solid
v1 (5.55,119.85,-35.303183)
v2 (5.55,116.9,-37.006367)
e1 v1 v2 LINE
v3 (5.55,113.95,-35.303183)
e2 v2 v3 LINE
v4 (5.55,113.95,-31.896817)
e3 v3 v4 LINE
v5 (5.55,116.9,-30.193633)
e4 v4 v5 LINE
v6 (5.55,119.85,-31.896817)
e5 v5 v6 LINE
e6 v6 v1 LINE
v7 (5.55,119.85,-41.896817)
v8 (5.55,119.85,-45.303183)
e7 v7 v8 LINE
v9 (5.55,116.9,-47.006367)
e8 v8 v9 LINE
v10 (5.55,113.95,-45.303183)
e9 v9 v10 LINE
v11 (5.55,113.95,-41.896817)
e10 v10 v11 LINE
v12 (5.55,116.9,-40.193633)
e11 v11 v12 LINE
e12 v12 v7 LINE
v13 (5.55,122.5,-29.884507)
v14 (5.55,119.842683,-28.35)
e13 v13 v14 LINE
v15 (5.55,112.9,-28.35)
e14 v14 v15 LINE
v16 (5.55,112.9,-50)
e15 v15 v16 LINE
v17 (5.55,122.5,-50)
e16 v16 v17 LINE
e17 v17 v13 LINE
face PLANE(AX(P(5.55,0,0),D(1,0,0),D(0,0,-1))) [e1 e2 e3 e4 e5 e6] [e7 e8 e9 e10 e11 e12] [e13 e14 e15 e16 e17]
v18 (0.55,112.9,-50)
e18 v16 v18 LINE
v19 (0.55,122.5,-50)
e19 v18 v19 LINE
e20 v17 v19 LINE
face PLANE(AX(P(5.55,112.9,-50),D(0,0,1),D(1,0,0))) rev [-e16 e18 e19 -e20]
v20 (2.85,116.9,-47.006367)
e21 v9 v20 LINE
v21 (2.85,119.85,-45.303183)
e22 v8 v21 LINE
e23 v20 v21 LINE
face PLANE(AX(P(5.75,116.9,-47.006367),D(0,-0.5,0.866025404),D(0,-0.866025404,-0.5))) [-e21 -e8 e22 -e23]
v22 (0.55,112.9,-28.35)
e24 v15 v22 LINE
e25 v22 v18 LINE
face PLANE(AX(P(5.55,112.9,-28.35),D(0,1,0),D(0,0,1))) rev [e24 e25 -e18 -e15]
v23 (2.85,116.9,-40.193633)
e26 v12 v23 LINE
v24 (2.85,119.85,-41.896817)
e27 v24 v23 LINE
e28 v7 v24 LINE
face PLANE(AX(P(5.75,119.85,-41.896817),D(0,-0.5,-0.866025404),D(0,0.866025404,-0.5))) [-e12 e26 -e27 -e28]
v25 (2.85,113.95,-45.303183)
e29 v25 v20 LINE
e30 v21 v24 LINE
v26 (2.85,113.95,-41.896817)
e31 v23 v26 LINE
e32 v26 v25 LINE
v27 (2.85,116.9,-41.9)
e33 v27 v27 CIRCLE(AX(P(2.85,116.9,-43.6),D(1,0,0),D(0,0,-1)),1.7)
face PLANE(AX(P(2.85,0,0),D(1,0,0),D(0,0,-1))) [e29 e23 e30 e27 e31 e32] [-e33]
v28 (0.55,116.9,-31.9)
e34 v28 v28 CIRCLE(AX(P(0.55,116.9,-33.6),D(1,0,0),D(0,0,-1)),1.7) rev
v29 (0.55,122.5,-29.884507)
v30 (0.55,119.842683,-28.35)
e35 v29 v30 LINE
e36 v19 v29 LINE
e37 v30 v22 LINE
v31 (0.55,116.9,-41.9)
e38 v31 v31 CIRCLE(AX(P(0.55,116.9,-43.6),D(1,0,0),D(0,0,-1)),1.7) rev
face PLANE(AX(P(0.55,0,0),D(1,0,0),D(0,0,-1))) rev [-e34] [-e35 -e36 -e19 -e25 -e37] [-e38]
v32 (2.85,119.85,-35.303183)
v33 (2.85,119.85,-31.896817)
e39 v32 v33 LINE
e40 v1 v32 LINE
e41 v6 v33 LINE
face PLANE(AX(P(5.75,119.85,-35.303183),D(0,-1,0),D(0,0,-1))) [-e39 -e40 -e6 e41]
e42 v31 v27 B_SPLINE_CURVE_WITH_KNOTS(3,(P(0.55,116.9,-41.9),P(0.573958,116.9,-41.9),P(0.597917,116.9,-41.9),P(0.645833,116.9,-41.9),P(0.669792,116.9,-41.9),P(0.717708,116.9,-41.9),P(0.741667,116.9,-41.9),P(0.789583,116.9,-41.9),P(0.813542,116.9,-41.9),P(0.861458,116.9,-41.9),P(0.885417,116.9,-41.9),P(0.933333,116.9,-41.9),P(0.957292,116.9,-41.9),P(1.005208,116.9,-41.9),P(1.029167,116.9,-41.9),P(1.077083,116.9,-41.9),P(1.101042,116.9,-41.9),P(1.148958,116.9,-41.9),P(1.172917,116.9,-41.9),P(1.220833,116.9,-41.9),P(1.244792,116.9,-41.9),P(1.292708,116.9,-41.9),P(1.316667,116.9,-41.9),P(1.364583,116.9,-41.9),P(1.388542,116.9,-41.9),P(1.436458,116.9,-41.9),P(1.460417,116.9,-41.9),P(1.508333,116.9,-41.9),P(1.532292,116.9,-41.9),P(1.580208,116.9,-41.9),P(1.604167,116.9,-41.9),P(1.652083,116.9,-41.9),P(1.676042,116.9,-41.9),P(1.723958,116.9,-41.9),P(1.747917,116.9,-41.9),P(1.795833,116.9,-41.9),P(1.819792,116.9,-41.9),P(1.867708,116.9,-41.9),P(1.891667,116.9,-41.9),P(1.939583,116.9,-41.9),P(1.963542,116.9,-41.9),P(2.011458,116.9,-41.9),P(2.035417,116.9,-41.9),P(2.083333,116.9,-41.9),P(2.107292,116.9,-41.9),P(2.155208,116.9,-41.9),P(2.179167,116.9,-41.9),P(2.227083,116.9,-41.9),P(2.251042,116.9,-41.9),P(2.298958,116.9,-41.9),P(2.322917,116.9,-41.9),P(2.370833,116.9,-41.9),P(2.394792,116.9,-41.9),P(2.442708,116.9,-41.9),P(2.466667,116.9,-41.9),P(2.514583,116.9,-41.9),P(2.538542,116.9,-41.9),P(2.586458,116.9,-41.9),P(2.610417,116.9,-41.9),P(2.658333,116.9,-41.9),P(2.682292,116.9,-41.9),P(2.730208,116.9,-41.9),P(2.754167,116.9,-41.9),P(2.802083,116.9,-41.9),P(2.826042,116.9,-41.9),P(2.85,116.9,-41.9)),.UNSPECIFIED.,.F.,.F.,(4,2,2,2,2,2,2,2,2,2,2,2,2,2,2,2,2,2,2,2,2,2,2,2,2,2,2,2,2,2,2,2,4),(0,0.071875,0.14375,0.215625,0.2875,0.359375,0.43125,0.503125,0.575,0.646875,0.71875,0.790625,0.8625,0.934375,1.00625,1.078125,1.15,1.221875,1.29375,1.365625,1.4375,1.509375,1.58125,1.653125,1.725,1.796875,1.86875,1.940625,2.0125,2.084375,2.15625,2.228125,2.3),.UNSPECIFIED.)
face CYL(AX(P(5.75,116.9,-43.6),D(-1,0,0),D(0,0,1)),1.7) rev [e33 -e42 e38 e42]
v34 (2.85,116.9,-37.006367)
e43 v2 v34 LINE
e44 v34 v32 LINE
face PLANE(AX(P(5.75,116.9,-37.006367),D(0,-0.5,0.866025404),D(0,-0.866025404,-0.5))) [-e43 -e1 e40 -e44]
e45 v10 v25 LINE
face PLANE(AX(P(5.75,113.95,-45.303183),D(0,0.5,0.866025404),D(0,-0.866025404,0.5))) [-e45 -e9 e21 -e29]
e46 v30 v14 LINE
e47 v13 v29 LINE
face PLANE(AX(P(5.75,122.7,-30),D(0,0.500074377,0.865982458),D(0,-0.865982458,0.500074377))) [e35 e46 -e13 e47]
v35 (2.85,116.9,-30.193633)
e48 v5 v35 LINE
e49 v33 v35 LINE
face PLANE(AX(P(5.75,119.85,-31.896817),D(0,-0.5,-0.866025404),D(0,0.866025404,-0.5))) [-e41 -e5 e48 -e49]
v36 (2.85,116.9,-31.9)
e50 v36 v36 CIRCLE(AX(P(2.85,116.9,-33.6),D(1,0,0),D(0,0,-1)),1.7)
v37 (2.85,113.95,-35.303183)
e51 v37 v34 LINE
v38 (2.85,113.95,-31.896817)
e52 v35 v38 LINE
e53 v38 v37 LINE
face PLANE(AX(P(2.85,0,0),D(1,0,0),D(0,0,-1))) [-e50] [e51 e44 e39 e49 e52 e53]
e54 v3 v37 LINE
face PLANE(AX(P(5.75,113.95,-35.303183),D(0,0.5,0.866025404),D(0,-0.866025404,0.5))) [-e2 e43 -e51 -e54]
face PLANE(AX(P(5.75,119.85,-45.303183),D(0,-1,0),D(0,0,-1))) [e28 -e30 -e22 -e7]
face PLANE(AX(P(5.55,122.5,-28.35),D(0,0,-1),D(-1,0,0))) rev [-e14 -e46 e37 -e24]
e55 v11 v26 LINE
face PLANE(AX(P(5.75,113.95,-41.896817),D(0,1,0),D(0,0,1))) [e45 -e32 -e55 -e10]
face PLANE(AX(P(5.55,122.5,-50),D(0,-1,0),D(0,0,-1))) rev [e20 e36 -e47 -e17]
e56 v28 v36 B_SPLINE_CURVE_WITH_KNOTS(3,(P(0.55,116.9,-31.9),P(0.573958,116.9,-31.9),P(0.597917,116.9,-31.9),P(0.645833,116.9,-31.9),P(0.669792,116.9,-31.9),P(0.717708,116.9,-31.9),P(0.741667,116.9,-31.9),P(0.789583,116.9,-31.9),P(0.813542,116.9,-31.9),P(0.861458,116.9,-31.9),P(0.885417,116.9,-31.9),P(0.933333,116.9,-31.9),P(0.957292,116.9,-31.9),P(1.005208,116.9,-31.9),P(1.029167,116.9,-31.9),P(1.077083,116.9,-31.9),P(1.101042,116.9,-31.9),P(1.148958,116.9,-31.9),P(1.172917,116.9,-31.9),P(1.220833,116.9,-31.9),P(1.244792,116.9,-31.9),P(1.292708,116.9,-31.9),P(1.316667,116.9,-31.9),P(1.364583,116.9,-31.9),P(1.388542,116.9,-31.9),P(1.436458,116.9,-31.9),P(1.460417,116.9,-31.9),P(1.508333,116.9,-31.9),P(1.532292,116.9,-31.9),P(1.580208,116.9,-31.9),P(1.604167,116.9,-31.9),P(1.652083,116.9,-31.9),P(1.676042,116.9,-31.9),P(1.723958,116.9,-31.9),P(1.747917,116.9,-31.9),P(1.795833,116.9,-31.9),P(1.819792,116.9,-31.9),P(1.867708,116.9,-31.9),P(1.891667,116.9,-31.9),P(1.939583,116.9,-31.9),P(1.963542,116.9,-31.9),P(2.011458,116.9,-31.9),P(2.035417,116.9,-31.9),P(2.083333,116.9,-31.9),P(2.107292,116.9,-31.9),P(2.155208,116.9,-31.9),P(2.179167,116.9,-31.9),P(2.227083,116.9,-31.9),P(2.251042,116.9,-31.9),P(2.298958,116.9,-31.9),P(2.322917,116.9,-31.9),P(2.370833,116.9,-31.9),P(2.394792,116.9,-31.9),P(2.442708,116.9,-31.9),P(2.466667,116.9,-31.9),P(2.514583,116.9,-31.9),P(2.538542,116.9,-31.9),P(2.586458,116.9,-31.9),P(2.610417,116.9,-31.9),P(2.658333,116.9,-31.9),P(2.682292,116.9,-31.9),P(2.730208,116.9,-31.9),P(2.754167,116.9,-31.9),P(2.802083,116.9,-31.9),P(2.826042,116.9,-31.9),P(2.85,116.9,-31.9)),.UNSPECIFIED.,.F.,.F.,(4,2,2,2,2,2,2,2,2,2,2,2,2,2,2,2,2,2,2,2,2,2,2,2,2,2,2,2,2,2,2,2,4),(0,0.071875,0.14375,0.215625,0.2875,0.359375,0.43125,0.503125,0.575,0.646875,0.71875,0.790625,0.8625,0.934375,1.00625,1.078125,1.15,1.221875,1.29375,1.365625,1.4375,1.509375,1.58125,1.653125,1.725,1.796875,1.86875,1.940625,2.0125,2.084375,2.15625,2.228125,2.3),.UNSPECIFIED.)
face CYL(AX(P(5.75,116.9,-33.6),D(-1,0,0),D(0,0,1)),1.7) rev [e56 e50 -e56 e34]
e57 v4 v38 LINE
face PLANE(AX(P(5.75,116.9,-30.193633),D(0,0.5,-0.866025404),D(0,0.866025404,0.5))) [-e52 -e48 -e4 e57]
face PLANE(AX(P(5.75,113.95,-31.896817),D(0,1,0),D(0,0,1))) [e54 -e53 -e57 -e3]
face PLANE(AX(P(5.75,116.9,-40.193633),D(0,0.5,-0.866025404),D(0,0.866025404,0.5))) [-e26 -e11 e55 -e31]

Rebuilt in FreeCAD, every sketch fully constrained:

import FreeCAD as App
import Part
import Sketcher
from FreeCAD import Vector
Q = App.Units.Quantity

doc = App.newDocument("Part")
body = doc.addObject("PartDesign::Body", "Body")

sketch1 = body.newObject("Sketcher::SketchObject", "Sketch")
sketch1.AttachmentSupport = (doc.getObject("YZ_Plane"), [""])
sketch1.MapMode = "FlatFace"
sketch1.AttachmentOffset = App.Placement(Vector(0, 0, 0.55), App.Rotation())
sketch1.addGeometry([
    Part.LineSegment(Vector(122, -28, 0), Vector(113, -28, 0)),
    Part.LineSegment(Vector(113, -28, 0), Vector(113, -50, 0)),
    Part.LineSegment(Vector(113, -50, 0), Vector(122, -50, 0)),
    Part.LineSegment(Vector(122, -50, 0), Vector(122, -28, 0)),
], False)
sketch1.addConstraint([
    Sketcher.Constraint("Coincident", 0, 2, 1, 1),
    Sketcher.Constraint("Coincident", 1, 2, 2, 1),
    Sketcher.Constraint("Coincident", 2, 2, 3, 1),
    Sketcher.Constraint("Coincident", 3, 2, 0, 1),
    Sketcher.Constraint("Horizontal", 0),
    Sketcher.Constraint("Vertical", 1),
    Sketcher.Constraint("Horizontal", 2),
    Sketcher.Constraint("Vertical", 3),
    Sketcher.Constraint("DistanceX", 0, 2, 0, 1, 9.6),
    Sketcher.Constraint("DistanceY", 1, 2, -1, 1, 50.0),
    Sketcher.Constraint("DistanceY", 1, 2, 1, 1, 21.65),
    Sketcher.Constraint("DistanceX", -1, 1, 0, 2, 112.9),
])
pad1 = body.newObject("PartDesign::Pad", "Pad")
pad1.Profile = sketch1
pad1.Length = 5

sketch2 = body.newObject("Sketcher::SketchObject", "Sketch001")
sketch2.AttachmentSupport = (doc.getObject("YZ_Plane"), [""])
sketch2.MapMode = "FlatFace"
sketch2.AttachmentOffset = App.Placement(Vector(0, 0, 0.35), App.Rotation())
sketch2.addGeometry([
    Part.LineSegment(Vector(123, -22, 0), Vector(108, -22, 0)),
    Part.LineSegment(Vector(108, -22, 0), Vector(123, -30, 0)),
    Part.LineSegment(Vector(123, -30, 0), Vector(123, -22, 0)),
], False)
sketch2.addConstraint([
    Sketcher.Constraint("Coincident", 0, 2, 1, 1),
    Sketcher.Constraint("Coincident", 1, 2, 2, 1),
    Sketcher.Constraint("Coincident", 2, 2, 0, 1),
    Sketcher.Constraint("Horizontal", 0),
    Sketcher.Constraint("Vertical", 2),
    Sketcher.Constraint("DistanceX", 0, 2, 0, 1, 14.2),
    Sketcher.Constraint("DistanceY", 2, 1, 2, 2, 8.2),
    Sketcher.Constraint("DistanceY", 1, 2, -1, 1, 30.0),
    Sketcher.Constraint("DistanceX", -1, 1, 0, 2, 108.5),
])
pocket1 = body.newObject("PartDesign::Pocket", "Pocket")
pocket1.Profile = sketch2
pocket1.Length = 5.4
pocket1.Reversed = True

sketch3 = body.newObject("Sketcher::SketchObject", "Sketch002")
sketch3.AttachmentSupport = (doc.getObject("YZ_Plane"), [""])
sketch3.MapMode = "FlatFace"
sketch3.AttachmentOffset = App.Placement(Vector(0, 0, 0.35), App.Rotation())
sketch3.addGeometry([
    Part.Circle(Vector(116.9, -33.6, 0), Vector(0, 0, 1), 1.7),
    Part.Circle(Vector(116.9, -43.6, 0), Vector(0, 0, 1), 1.7),
], False)
sketch3.addConstraint([
    Sketcher.Constraint("Equal", 0, 1),
    Sketcher.Constraint("Vertical", 0, 3, 1, 3),
    Sketcher.Constraint("Diameter", 0, 3.4),
    Sketcher.Constraint("DistanceY", 1, 3, 0, 3, 10.0),
    Sketcher.Constraint("DistanceX", -1, 1, 0, 3, 116.9),
    Sketcher.Constraint("DistanceY", 0, 3, -1, 1, 33.6),
])
pocket2 = body.newObject("PartDesign::Pocket", "Pocket001")
pocket2.Profile = sketch3
pocket2.Length = 5.4
pocket2.Reversed = True

sketch4 = body.newObject("Sketcher::SketchObject", "Sketch003")
sketch4.AttachmentSupport = (doc.getObject("YZ_Plane"), [""])
sketch4.MapMode = "FlatFace"
sketch4.AttachmentOffset = App.Placement(Vector(0, 0, 2.85), App.Rotation())
sketch4.addGeometry([
    Part.LineSegment(Vector(119.8, -31.9, 0), Vector(116.9, -30.2, 0)),
    Part.LineSegment(Vector(116.9, -30.2, 0), Vector(114, -31.9, 0)),
    Part.LineSegment(Vector(114, -31.9, 0), Vector(114, -35.3, 0)),
    Part.LineSegment(Vector(114, -35.3, 0), Vector(116.9, -37, 0)),
    Part.LineSegment(Vector(116.9, -37, 0), Vector(119.8, -35.3, 0)),
    Part.LineSegment(Vector(119.8, -35.3, 0), Vector(119.8, -31.9, 0)),
    Part.LineSegment(Vector(119.8, -41.9, 0), Vector(116.9, -40.2, 0)),
    Part.LineSegment(Vector(116.9, -40.2, 0), Vector(114, -41.9, 0)),
    Part.LineSegment(Vector(114, -41.9, 0), Vector(114, -45.3, 0)),
    Part.LineSegment(Vector(114, -45.3, 0), Vector(116.9, -47, 0)),
    Part.LineSegment(Vector(116.9, -47, 0), Vector(119.8, -45.3, 0)),
    Part.LineSegment(Vector(119.8, -45.3, 0), Vector(119.8, -41.9, 0)),
], False)
sketch4.addConstraint([
    Sketcher.Constraint("Coincident", 0, 2, 1, 1),
    Sketcher.Constraint("Coincident", 1, 2, 2, 1),
    Sketcher.Constraint("Coincident", 2, 2, 3, 1),
    Sketcher.Constraint("Coincident", 3, 2, 4, 1),
    Sketcher.Constraint("Coincident", 4, 2, 5, 1),
    Sketcher.Constraint("Coincident", 5, 2, 0, 1),
    Sketcher.Constraint("Coincident", 6, 2, 7, 1),
    Sketcher.Constraint("Coincident", 7, 2, 8, 1),
    Sketcher.Constraint("Coincident", 8, 2, 9, 1),
    Sketcher.Constraint("Coincident", 9, 2, 10, 1),
    Sketcher.Constraint("Coincident", 10, 2, 11, 1),
    Sketcher.Constraint("Coincident", 11, 2, 6, 1),
    Sketcher.Constraint("Vertical", 2),
    Sketcher.Constraint("Vertical", 5),
    Sketcher.Constraint("Vertical", 8),
    Sketcher.Constraint("Vertical", 11),
    Sketcher.Constraint("Parallel", 0, 3),
    Sketcher.Constraint("Parallel", 1, 4),
    Sketcher.Constraint("Parallel", 3, 6),
    Sketcher.Constraint("Parallel", 4, 7),
    Sketcher.Constraint("Parallel", 6, 9),
    Sketcher.Constraint("Parallel", 7, 10),
    Sketcher.Constraint("Horizontal", 2, 2, 4, 2),
    Sketcher.Constraint("Horizontal", 1, 2, 5, 2),
    Sketcher.Constraint("Horizontal", 8, 2, 10, 2),
    Sketcher.Constraint("Horizontal", 7, 2, 11, 2),
    Sketcher.Constraint("Vertical", 0, 2, 3, 2),
    Sketcher.Constraint("Vertical", 3, 2, 6, 2),
    Sketcher.Constraint("Vertical", 2, 2, 7, 2),
    Sketcher.Constraint("Equal", 5, 8),
    Sketcher.Constraint("Angle", 0, Q("150 deg")),
    Sketcher.Constraint("DistanceY", 7, 2, 1, 2, 10.0),
    Sketcher.Constraint("DistanceX", -1, 1, 0, 2, 116.9),
    Sketcher.Constraint("DistanceX", 2, 2, 4, 2, 5.9),
    Sketcher.Constraint("DistanceY", 2, 2, 2, 1, 3.406367),
    Sketcher.Constraint("DistanceY", 0, 2, -1, 1, 30.193633),
])
pocket3 = body.newObject("PartDesign::Pocket", "Pocket002")
pocket3.Profile = sketch4
pocket3.Length = 2.9
pocket3.Reversed = True

doc.recompute()
